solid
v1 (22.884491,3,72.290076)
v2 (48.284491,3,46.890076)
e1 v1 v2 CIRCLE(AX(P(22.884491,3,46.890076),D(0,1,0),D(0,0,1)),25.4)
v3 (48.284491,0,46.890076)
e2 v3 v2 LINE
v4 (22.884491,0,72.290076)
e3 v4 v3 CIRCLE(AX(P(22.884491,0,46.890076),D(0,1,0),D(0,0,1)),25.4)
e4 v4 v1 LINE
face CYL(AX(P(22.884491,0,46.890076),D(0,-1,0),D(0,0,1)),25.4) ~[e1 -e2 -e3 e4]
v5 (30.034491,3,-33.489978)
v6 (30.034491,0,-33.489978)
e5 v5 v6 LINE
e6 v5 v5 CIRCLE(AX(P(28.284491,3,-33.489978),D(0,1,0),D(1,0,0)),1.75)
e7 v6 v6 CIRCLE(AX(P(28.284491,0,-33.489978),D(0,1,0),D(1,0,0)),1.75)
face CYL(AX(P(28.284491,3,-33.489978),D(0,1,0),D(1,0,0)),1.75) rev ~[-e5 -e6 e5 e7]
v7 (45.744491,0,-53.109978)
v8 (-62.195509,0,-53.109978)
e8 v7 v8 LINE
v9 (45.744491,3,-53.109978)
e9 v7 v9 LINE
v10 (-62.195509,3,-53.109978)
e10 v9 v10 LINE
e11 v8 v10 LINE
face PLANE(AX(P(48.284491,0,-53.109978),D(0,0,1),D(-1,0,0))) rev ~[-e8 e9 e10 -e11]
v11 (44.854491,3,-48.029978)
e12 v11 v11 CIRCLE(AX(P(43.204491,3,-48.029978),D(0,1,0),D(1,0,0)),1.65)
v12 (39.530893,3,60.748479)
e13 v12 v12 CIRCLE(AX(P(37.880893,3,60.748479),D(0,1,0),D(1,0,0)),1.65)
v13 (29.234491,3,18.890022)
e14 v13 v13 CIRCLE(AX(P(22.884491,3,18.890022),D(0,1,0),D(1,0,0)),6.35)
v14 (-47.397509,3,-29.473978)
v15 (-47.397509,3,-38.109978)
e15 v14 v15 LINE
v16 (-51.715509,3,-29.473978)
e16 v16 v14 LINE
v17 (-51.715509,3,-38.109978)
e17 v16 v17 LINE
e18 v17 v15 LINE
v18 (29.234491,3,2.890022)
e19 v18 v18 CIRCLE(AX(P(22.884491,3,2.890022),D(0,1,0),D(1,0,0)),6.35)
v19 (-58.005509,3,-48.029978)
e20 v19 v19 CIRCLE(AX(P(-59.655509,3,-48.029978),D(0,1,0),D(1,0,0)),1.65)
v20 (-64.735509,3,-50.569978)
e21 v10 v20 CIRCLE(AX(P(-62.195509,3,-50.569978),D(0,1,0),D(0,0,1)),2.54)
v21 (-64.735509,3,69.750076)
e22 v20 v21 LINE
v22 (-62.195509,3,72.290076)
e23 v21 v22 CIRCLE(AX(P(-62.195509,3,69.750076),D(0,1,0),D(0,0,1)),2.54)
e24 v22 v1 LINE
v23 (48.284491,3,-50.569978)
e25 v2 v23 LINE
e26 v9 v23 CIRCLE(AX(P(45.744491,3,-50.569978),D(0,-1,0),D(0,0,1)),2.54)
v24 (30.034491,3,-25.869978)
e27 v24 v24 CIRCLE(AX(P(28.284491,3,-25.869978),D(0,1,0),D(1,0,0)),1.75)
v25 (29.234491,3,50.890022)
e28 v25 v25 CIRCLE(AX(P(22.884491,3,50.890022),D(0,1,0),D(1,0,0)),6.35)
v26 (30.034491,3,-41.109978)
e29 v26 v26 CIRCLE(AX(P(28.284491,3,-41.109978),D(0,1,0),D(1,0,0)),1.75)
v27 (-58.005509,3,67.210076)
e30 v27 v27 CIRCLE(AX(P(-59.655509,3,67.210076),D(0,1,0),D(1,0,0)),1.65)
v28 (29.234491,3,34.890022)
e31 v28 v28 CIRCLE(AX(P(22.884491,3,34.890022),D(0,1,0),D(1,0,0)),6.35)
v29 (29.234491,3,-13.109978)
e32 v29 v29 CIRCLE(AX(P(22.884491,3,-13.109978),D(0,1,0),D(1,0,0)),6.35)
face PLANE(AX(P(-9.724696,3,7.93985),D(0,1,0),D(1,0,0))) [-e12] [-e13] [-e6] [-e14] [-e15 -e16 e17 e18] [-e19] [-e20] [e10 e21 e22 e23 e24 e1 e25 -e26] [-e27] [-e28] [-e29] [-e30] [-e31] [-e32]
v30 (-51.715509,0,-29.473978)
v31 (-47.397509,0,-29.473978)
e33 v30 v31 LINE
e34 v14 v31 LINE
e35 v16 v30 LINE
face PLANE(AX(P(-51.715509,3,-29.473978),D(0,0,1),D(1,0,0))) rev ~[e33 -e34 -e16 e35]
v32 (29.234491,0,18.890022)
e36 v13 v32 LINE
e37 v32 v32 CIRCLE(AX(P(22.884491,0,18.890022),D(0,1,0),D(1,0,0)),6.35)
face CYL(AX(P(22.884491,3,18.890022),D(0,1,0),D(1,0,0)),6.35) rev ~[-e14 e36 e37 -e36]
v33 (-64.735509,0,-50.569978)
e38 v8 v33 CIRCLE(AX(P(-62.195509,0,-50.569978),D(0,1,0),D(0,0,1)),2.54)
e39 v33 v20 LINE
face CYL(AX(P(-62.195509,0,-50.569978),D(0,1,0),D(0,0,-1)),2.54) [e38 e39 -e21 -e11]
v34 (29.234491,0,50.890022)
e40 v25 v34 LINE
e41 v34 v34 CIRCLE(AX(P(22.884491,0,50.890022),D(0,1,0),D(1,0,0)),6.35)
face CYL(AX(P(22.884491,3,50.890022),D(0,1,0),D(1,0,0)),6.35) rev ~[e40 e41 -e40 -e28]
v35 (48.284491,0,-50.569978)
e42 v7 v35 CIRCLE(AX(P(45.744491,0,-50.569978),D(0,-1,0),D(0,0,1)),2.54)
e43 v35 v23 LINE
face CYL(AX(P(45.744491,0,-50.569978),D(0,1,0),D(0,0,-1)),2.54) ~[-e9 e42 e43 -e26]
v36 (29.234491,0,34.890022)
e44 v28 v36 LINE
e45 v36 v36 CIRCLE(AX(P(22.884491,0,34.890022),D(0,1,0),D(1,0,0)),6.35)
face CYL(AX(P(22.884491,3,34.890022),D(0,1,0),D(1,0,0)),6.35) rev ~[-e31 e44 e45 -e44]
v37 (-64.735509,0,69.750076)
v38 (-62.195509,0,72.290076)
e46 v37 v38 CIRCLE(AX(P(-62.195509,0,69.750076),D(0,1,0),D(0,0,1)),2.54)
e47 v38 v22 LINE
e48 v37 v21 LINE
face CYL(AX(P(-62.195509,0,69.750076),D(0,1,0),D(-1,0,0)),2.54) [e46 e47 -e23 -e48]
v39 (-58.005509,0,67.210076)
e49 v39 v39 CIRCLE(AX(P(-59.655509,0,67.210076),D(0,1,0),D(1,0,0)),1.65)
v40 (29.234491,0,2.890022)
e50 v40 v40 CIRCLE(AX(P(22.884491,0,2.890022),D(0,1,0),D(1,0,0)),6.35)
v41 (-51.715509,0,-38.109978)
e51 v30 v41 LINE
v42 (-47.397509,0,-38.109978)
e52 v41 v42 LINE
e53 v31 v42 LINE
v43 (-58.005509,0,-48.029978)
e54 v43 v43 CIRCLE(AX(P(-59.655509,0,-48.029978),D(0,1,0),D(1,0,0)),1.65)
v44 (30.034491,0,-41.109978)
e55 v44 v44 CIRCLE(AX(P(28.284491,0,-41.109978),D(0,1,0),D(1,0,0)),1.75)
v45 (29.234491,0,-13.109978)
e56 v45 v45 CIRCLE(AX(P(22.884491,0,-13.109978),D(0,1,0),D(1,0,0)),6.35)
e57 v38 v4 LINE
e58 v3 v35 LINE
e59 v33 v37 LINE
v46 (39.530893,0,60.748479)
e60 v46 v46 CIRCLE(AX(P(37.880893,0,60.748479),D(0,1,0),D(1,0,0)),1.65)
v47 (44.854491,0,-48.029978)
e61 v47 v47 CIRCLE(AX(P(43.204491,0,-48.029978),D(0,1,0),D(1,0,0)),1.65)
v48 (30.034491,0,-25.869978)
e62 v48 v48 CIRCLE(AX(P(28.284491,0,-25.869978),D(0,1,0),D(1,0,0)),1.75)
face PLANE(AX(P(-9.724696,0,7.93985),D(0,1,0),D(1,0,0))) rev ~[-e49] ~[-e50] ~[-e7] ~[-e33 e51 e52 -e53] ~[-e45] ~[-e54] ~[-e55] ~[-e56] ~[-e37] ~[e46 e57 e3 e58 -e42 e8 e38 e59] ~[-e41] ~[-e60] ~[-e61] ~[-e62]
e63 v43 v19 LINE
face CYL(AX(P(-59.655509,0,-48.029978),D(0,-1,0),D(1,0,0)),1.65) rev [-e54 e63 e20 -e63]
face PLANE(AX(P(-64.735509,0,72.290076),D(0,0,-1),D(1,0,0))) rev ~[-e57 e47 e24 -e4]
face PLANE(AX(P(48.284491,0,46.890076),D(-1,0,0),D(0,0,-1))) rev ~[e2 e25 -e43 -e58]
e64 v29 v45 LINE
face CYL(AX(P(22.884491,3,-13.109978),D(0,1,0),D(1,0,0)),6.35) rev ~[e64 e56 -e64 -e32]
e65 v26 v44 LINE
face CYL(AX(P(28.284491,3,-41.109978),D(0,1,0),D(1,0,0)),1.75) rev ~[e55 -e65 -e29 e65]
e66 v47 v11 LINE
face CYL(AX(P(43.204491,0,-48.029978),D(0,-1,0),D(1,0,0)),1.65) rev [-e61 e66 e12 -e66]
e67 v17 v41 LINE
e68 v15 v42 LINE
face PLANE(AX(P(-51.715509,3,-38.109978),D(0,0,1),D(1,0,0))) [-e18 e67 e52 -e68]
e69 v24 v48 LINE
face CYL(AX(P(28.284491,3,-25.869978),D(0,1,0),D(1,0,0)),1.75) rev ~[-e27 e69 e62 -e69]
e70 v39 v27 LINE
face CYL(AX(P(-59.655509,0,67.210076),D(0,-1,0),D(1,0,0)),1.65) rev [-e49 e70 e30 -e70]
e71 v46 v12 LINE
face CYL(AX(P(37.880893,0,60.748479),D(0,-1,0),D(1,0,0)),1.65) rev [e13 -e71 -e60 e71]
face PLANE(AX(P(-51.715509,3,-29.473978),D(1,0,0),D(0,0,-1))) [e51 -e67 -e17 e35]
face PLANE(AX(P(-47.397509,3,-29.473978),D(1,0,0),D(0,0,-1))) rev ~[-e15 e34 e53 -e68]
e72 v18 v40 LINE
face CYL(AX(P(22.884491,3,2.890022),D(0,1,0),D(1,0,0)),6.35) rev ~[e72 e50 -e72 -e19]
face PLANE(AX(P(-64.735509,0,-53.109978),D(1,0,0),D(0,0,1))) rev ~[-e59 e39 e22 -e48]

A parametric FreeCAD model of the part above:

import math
import FreeCAD as App
import Part
import Sketcher
Q = App.Units.Quantity


def edges_at(feature, points):
    """Names of the edges that pass closest to the given points."""
    edges = feature.Shape.Edges
    near = lambda p: min(range(len(edges)), key=lambda i: edges[i].distToShape(Part.Vertex(*p))[0])
    return sorted({f"Edge{near(p) + 1}" for p in points})


def add_polygon(sketch, points):
    """Adds a closed chain of lines whose ends are joined by coincident constraints."""
    first, n = sketch.GeometryCount, len(points)
    for a, b in zip(points, points[1:] + points[:1]):
        sketch.addGeometry(Part.LineSegment(App.Vector(*a, 0), App.Vector(*b, 0)), False)
    for i in range(n):
        sketch.addConstraint(Sketcher.Constraint("Coincident", first + i, 2, first + (i + 1) % n, 1))

doc = App.newDocument("Part")
body = doc.addObject("PartDesign::Body", "Body")

sketch1 = body.newObject("Sketcher::SketchObject", "Sketch")
sketch1.AttachmentSupport = (doc.getObject("XZ_Plane"), [""])
sketch1.MapMode = "FlatFace"
sketch1.addGeometry(Part.LineSegment(App.Vector(48.284491, -53.109978, 0), App.Vector(-64.735509, -53.109978, 0)), False)
sketch1.addGeometry(Part.LineSegment(App.Vector(-64.735509, -53.109978, 0), App.Vector(-64.735509, 72.290076, 0)), False)
sketch1.addGeometry(Part.LineSegment(App.Vector(-64.735509, 72.290076, 0), App.Vector(22.884491, 72.290076, 0)), False)
sketch1.addGeometry(Part.ArcOfCircle(Part.Circle(App.Vector(22.884491, 46.890076, 0), App.Vector(0, 0, 1), 25.4), math.radians(0), math.radians(90)), False)
sketch1.addGeometry(Part.LineSegment(App.Vector(48.284491, 46.890076, 0), App.Vector(48.284491, -53.109978, 0)), False)
sketch1.addGeometry(Part.Circle(App.Vector(-59.655509, 67.210076, 0), App.Vector(0, 0, 1), 1.65), False)
sketch1.addGeometry(Part.Circle(App.Vector(37.880893, 60.748479, 0), App.Vector(0, 0, 1), 1.65), False)
sketch1.addGeometry(Part.Circle(App.Vector(-59.655509, -48.029978, 0), App.Vector(0, 0, 1), 1.65), False)
sketch1.addGeometry(Part.Circle(App.Vector(43.204491, -48.029978, 0), App.Vector(0, 0, 1), 1.65), False)
sketch1.addConstraint(Sketcher.Constraint("Coincident", 0, 2, 1, 1))
sketch1.addConstraint(Sketcher.Constraint("Coincident", 1, 2, 2, 1))
sketch1.addConstraint(Sketcher.Constraint("Tangent", 2, 2, 3, 2))
sketch1.addConstraint(Sketcher.Constraint("Tangent", 3, 1, 4, 1))
sketch1.addConstraint(Sketcher.Constraint("Coincident", 4, 2, 0, 1))
sketch1.addConstraint(Sketcher.Constraint("Horizontal", 0))
sketch1.addConstraint(Sketcher.Constraint("Vertical", 1))
sketch1.addConstraint(Sketcher.Constraint("Horizontal", 2))
sketch1.addConstraint(Sketcher.Constraint("Vertical", 4))
sketch1.addConstraint(Sketcher.Constraint("Equal", 5, 6))
sketch1.addConstraint(Sketcher.Constraint("Equal", 6, 7))
sketch1.addConstraint(Sketcher.Constraint("Equal", 7, 8))
sketch1.addConstraint(Sketcher.Constraint("Horizontal", 7, 3, 8, 3))
sketch1.addConstraint(Sketcher.Constraint("Vertical", 5, 3, 7, 3))
sketch1.addConstraint(Sketcher.Constraint("Radius", 3, Q("1 in")))
sketch1.addConstraint(Sketcher.Constraint("DistanceY", 3, 3, 5, 3, Q("0.8 in")))
sketch1.addConstraint(Sketcher.Constraint("DistanceX", 3, 3, 8, 3, Q("0.8 in")))
sketch1.addConstraint(Sketcher.Constraint("DistanceX", 0, 2, 7, 3, Q("0.2 in")))
sketch1.addConstraint(Sketcher.Constraint("DistanceY", 0, 2, 7, 3, Q("0.2 in")))
sketch1.addConstraint(Sketcher.Constraint("Diameter", 5, Q("3.3 mm")))
sketch1.addConstraint(Sketcher.Constraint("DistanceX", 0, 2, 0, 1, Q("113.02 mm")))
sketch1.addConstraint(Sketcher.Constraint("DistanceX", 3, 3, 6, 3, Q("14.996402 mm")))
sketch1.addConstraint(Sketcher.Constraint("DistanceY", 1, 1, 1, 2, Q("125.400054 mm")))
sketch1.addConstraint(Sketcher.Constraint("DistanceX", -1, 1, 3, 3, Q("22.884491 mm")))
sketch1.addConstraint(Sketcher.Constraint("DistanceY", -1, 1, 6, 3, Q("60.748479 mm")))
sketch1.addConstraint(Sketcher.Constraint("DistanceY", -1, 1, 3, 3, Q("46.890076 mm")))
pad1 = body.newObject("PartDesign::Pad", "Pad")
pad1.Profile = sketch1
pad1.Length = 3
pad1.Reversed = True
doc.recompute()

fillet = body.newObject("PartDesign::Fillet", "Fillet")
fillet.Base = (pad1, edges_at(pad1, [(-64.736, 1.5, 72.29), (-64.736, 1.5, -53.11), (48.284, 1.5, -53.11)]))
fillet.Radius = Q("0.1 in")

sketch2 = body.newObject("Sketcher::SketchObject", "Sketch001")
sketch2.AttachmentSupport = (doc.getObject("XZ_Plane"), [""])
sketch2.MapMode = "FlatFace"
sketch2.AttachmentOffset = App.Placement(App.Vector(0, 0, -3), App.Rotation())
sketch2.addGeometry(Part.Circle(App.Vector(22.884491, -13.109978, 0), App.Vector(0, 0, 1), 6.35), False)
sketch2.addGeometry(Part.Circle(App.Vector(22.884491, 2.890022, 0), App.Vector(0, 0, 1), 6.35), False)
sketch2.addGeometry(Part.Circle(App.Vector(22.884491, 18.890022, 0), App.Vector(0, 0, 1), 6.35), False)
sketch2.addGeometry(Part.Circle(App.Vector(22.884491, 34.890022, 0), App.Vector(0, 0, 1), 6.35), False)
sketch2.addGeometry(Part.Circle(App.Vector(22.884491, 50.890022, 0), App.Vector(0, 0, 1), 6.35), False)
sketch2.addConstraint(Sketcher.Constraint("Equal", 0, 1))
sketch2.addConstraint(Sketcher.Constraint("Equal", 1, 2))
sketch2.addConstraint(Sketcher.Constraint("Equal", 2, 3))
sketch2.addConstraint(Sketcher.Constraint("Equal", 3, 4))
sketch2.addConstraint(Sketcher.Constraint("Vertical", 0, 3, 1, 3))
sketch2.addConstraint(Sketcher.Constraint("Vertical", 1, 3, 2, 3))
sketch2.addConstraint(Sketcher.Constraint("Vertical", 2, 3, 3, 3))
sketch2.addConstraint(Sketcher.Constraint("Vertical", 3, 3, 4, 3))
sketch2.addConstraint(Sketcher.Constraint("Diameter", 0, Q("0.5 in")))
sketch2.addConstraint(Sketcher.Constraint("DistanceY", 0, 3, 1, 3, Q("16 mm")))
sketch2.addConstraint(Sketcher.Constraint("DistanceY", 1, 3, 2, 3, Q("16 mm")))
sketch2.addConstraint(Sketcher.Constraint("DistanceY", 2, 3, 3, 3, Q("16 mm")))
sketch2.addConstraint(Sketcher.Constraint("DistanceY", 3, 3, 4, 3, Q("16 mm")))
sketch2.addConstraint(Sketcher.Constraint("DistanceX", -1, 1, 0, 3, Q("22.884491 mm")))
sketch2.addConstraint(Sketcher.Constraint("DistanceY", 0, 3, -1, 1, Q("13.109978 mm")))
pocket1 = body.newObject("PartDesign::Pocket", "Pocket")
pocket1.Profile = sketch2
pocket1.Type = "ThroughAll"
pocket1.Reversed = True

sketch3 = body.newObject("Sketcher::SketchObject", "Sketch002")
sketch3.AttachmentSupport = (doc.getObject("XZ_Plane"), [""])
sketch3.MapMode = "FlatFace"
sketch3.AttachmentOffset = App.Placement(App.Vector(0, 0, -3), App.Rotation())
sketch3.addGeometry(Part.Circle(App.Vector(28.284491, -41.109978, 0), App.Vector(0, 0, 1), 1.75), False)
sketch3.addGeometry(Part.Circle(App.Vector(28.284491, -33.489978, 0), App.Vector(0, 0, 1), 1.75), False)
sketch3.addGeometry(Part.Circle(App.Vector(28.284491, -25.869978, 0), App.Vector(0, 0, 1), 1.75), False)
sketch3.addConstraint(Sketcher.Constraint("Equal", 0, 1))
sketch3.addConstraint(Sketcher.Constraint("Equal", 1, 2))
sketch3.addConstraint(Sketcher.Constraint("Vertical", 0, 3, 1, 3))
sketch3.addConstraint(Sketcher.Constraint("Vertical", 1, 3, 2, 3))
sketch3.addConstraint(Sketcher.Constraint("DistanceY", 0, 3, 1, 3, Q("0.3 in")))
sketch3.addConstraint(Sketcher.Constraint("DistanceY", 1, 3, 2, 3, Q("0.3 in")))
sketch3.addConstraint(Sketcher.Constraint("Diameter", 0, Q("3.5 mm")))
sketch3.addConstraint(Sketcher.Constraint("DistanceX", -1, 1, 0, 3, Q("28.284491 mm")))
sketch3.addConstraint(Sketcher.Constraint("DistanceY", 0, 3, -1, 1, Q("41.109978 mm")))
pocket2 = body.newObject("PartDesign::Pocket", "Pocket001")
pocket2.Profile = sketch3
pocket2.Type = "ThroughAll"
pocket2.Reversed = True

sketch4 = body.newObject("Sketcher::SketchObject", "Sketch003")
sketch4.AttachmentSupport = (doc.getObject("XZ_Plane"), [""])
sketch4.MapMode = "FlatFace"
sketch4.AttachmentOffset = App.Placement(App.Vector(0, 0, -3), App.Rotation())
add_polygon(sketch4, [(-51.715509, -38.109978), (-51.715509, -29.473978), (-47.397509, -29.473978), (-47.397509, -38.109978)])
sketch4.addConstraint(Sketcher.Constraint("Vertical", 0))
sketch4.addConstraint(Sketcher.Constraint("Horizontal", 1))
sketch4.addConstraint(Sketcher.Constraint("Vertical", 2))
sketch4.addConstraint(Sketcher.Constraint("Horizontal", 3))
sketch4.addConstraint(Sketcher.Constraint("DistanceX", 1, 1, 1, 2, Q("0.17 in")))
sketch4.addConstraint(Sketcher.Constraint("DistanceY", 0, 1, 0, 2, Q("0.34 in")))
sketch4.addConstraint(Sketcher.Constraint("DistanceX", 0, 2, -1, 1, Q("51.715509 mm")))
sketch4.addConstraint(Sketcher.Constraint("DistanceY", 0, 2, -1, 1, Q("29.473978 mm")))
pocket3 = body.newObject("PartDesign::Pocket", "Pocket002")
pocket3.Profile = sketch4
pocket3.Type = "ThroughAll"
pocket3.Reversed = True

doc.recompute()
